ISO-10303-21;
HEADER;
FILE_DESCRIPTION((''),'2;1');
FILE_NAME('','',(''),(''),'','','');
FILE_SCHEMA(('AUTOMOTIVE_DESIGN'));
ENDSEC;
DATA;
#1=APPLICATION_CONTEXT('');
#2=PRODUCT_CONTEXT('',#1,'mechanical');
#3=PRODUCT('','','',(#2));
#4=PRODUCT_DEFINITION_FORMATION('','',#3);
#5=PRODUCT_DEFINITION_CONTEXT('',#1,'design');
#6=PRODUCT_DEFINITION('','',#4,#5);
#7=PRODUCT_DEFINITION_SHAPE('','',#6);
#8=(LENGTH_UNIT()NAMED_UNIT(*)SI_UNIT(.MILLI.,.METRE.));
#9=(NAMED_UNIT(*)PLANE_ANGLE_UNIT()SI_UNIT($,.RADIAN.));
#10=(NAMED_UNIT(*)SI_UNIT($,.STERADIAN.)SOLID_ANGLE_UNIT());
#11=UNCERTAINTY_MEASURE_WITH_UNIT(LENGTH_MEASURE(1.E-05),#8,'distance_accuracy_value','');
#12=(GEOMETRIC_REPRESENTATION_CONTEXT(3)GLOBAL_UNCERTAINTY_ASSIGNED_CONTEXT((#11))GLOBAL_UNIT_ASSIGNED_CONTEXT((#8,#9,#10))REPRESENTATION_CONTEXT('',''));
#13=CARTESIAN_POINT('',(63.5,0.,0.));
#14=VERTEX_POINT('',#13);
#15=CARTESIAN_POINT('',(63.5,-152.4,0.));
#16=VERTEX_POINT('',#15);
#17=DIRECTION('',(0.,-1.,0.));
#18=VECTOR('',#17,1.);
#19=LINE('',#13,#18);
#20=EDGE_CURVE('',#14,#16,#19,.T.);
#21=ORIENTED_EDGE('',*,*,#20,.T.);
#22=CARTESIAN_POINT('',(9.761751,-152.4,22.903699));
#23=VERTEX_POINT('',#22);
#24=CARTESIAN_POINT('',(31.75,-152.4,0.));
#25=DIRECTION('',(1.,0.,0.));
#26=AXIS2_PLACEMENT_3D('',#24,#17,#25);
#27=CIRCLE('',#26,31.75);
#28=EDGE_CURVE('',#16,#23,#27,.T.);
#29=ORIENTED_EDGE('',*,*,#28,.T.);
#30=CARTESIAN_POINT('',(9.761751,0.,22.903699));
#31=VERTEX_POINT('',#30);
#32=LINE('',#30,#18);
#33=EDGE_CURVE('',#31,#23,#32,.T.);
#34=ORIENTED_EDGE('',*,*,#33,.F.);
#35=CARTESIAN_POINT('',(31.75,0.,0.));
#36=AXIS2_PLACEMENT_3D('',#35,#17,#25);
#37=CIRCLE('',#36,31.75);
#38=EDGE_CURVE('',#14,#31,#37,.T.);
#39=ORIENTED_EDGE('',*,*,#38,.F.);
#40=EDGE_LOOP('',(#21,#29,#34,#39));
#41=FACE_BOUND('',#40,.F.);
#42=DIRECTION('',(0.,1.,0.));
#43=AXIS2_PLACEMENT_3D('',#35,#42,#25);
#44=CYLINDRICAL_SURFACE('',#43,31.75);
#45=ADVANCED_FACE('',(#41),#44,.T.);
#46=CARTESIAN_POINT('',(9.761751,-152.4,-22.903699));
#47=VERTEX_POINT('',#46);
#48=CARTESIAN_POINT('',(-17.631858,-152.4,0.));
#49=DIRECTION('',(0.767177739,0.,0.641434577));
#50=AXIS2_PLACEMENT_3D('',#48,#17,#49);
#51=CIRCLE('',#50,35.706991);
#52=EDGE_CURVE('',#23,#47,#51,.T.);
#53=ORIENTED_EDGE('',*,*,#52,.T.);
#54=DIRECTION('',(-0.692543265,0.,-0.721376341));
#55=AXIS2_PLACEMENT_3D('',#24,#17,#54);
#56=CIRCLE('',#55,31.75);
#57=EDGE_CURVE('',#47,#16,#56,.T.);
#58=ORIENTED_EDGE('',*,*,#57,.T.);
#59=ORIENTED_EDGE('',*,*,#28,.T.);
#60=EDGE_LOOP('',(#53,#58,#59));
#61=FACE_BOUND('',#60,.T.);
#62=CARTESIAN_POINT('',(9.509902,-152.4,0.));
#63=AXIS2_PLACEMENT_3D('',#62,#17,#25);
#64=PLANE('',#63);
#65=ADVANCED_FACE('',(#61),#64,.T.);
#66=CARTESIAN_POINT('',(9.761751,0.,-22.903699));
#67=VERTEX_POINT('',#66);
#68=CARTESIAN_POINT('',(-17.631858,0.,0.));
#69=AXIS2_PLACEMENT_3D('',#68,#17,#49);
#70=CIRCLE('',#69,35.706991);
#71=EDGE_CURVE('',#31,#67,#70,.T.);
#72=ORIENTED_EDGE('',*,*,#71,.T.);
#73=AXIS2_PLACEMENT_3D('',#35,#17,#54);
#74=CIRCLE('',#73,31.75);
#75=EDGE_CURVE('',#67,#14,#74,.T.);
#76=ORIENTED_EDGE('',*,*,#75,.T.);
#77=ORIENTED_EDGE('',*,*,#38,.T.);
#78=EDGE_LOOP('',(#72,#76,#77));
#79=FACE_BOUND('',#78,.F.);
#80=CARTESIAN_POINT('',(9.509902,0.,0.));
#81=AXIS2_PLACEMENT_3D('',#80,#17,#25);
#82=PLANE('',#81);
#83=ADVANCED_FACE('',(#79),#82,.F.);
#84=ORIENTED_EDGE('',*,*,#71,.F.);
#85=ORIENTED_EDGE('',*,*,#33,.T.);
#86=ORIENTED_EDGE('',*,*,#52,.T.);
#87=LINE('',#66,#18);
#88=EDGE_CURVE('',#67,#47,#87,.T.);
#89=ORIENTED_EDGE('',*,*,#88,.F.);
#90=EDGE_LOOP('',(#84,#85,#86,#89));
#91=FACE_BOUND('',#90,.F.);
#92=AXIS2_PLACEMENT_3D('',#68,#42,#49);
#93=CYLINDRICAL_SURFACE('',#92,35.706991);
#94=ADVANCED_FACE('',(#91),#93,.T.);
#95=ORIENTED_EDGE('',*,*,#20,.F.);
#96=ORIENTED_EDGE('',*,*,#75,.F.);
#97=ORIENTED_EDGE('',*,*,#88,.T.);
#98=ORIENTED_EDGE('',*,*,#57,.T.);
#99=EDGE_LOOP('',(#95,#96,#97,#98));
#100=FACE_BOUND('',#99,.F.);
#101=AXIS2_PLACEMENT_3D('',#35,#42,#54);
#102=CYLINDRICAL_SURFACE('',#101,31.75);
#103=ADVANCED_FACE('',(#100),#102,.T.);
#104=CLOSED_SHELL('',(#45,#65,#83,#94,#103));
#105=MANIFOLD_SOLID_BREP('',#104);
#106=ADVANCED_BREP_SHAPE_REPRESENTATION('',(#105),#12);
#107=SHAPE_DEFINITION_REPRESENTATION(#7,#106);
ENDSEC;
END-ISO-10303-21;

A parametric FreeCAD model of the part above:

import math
import FreeCAD as App
import Part
import Sketcher

V = App.Vector
Q = App.Units.Quantity

doc = App.newDocument("Part")
body = doc.addObject("PartDesign::Body", "Body")

sketch1 = body.newObject("Sketcher::SketchObject", "Sketch")
sketch1.AttachmentSupport = (doc.getObject("XZ_Plane"), [""])
sketch1.MapMode = "FlatFace"
sketch1.addGeometry([
    Part.ArcOfCircle(Part.Circle(V(32, 0, 0), V(0, 0, 1), 32), math.radians(-134), math.radians(0)),
    Part.ArcOfCircle(Part.Circle(V(32, 0, 0), V(0, 0, 1), 32), math.radians(0), math.radians(134)),
    Part.ArcOfCircle(Part.Circle(V(-18, 0, 0), V(0, 0, 1), 36), math.radians(40), math.radians(320)),
], False)
sketch1.addConstraint([
    Sketcher.Constraint("Tangent", 0, 2, 1, 1),
    Sketcher.Constraint("Coincident", 1, 2, 2, 1),
    Sketcher.Constraint("Coincident", 2, 2, 0, 1),
    Sketcher.Constraint("Equal", 0, 1),
    Sketcher.Constraint("Symmetric", 1, 2, 2, 2, -1),
    Sketcher.Constraint("PointOnObject", 0, 2, -1),
    Sketcher.Constraint("Radius", 0, Q("1.25 in")),
    Sketcher.Constraint("DistanceX", -1, 1, 0, 2, Q("2.5 in")),
    Sketcher.Constraint("Radius", 2, Q("35.706991 mm")),
    Sketcher.Constraint("DistanceY", -1, 1, 1, 2, Q("22.903699 mm")),
])
pad1 = body.newObject("PartDesign::Pad", "Pad")
pad1.Profile = sketch1
pad1.Length = Q("6 in")

doc.recompute()
